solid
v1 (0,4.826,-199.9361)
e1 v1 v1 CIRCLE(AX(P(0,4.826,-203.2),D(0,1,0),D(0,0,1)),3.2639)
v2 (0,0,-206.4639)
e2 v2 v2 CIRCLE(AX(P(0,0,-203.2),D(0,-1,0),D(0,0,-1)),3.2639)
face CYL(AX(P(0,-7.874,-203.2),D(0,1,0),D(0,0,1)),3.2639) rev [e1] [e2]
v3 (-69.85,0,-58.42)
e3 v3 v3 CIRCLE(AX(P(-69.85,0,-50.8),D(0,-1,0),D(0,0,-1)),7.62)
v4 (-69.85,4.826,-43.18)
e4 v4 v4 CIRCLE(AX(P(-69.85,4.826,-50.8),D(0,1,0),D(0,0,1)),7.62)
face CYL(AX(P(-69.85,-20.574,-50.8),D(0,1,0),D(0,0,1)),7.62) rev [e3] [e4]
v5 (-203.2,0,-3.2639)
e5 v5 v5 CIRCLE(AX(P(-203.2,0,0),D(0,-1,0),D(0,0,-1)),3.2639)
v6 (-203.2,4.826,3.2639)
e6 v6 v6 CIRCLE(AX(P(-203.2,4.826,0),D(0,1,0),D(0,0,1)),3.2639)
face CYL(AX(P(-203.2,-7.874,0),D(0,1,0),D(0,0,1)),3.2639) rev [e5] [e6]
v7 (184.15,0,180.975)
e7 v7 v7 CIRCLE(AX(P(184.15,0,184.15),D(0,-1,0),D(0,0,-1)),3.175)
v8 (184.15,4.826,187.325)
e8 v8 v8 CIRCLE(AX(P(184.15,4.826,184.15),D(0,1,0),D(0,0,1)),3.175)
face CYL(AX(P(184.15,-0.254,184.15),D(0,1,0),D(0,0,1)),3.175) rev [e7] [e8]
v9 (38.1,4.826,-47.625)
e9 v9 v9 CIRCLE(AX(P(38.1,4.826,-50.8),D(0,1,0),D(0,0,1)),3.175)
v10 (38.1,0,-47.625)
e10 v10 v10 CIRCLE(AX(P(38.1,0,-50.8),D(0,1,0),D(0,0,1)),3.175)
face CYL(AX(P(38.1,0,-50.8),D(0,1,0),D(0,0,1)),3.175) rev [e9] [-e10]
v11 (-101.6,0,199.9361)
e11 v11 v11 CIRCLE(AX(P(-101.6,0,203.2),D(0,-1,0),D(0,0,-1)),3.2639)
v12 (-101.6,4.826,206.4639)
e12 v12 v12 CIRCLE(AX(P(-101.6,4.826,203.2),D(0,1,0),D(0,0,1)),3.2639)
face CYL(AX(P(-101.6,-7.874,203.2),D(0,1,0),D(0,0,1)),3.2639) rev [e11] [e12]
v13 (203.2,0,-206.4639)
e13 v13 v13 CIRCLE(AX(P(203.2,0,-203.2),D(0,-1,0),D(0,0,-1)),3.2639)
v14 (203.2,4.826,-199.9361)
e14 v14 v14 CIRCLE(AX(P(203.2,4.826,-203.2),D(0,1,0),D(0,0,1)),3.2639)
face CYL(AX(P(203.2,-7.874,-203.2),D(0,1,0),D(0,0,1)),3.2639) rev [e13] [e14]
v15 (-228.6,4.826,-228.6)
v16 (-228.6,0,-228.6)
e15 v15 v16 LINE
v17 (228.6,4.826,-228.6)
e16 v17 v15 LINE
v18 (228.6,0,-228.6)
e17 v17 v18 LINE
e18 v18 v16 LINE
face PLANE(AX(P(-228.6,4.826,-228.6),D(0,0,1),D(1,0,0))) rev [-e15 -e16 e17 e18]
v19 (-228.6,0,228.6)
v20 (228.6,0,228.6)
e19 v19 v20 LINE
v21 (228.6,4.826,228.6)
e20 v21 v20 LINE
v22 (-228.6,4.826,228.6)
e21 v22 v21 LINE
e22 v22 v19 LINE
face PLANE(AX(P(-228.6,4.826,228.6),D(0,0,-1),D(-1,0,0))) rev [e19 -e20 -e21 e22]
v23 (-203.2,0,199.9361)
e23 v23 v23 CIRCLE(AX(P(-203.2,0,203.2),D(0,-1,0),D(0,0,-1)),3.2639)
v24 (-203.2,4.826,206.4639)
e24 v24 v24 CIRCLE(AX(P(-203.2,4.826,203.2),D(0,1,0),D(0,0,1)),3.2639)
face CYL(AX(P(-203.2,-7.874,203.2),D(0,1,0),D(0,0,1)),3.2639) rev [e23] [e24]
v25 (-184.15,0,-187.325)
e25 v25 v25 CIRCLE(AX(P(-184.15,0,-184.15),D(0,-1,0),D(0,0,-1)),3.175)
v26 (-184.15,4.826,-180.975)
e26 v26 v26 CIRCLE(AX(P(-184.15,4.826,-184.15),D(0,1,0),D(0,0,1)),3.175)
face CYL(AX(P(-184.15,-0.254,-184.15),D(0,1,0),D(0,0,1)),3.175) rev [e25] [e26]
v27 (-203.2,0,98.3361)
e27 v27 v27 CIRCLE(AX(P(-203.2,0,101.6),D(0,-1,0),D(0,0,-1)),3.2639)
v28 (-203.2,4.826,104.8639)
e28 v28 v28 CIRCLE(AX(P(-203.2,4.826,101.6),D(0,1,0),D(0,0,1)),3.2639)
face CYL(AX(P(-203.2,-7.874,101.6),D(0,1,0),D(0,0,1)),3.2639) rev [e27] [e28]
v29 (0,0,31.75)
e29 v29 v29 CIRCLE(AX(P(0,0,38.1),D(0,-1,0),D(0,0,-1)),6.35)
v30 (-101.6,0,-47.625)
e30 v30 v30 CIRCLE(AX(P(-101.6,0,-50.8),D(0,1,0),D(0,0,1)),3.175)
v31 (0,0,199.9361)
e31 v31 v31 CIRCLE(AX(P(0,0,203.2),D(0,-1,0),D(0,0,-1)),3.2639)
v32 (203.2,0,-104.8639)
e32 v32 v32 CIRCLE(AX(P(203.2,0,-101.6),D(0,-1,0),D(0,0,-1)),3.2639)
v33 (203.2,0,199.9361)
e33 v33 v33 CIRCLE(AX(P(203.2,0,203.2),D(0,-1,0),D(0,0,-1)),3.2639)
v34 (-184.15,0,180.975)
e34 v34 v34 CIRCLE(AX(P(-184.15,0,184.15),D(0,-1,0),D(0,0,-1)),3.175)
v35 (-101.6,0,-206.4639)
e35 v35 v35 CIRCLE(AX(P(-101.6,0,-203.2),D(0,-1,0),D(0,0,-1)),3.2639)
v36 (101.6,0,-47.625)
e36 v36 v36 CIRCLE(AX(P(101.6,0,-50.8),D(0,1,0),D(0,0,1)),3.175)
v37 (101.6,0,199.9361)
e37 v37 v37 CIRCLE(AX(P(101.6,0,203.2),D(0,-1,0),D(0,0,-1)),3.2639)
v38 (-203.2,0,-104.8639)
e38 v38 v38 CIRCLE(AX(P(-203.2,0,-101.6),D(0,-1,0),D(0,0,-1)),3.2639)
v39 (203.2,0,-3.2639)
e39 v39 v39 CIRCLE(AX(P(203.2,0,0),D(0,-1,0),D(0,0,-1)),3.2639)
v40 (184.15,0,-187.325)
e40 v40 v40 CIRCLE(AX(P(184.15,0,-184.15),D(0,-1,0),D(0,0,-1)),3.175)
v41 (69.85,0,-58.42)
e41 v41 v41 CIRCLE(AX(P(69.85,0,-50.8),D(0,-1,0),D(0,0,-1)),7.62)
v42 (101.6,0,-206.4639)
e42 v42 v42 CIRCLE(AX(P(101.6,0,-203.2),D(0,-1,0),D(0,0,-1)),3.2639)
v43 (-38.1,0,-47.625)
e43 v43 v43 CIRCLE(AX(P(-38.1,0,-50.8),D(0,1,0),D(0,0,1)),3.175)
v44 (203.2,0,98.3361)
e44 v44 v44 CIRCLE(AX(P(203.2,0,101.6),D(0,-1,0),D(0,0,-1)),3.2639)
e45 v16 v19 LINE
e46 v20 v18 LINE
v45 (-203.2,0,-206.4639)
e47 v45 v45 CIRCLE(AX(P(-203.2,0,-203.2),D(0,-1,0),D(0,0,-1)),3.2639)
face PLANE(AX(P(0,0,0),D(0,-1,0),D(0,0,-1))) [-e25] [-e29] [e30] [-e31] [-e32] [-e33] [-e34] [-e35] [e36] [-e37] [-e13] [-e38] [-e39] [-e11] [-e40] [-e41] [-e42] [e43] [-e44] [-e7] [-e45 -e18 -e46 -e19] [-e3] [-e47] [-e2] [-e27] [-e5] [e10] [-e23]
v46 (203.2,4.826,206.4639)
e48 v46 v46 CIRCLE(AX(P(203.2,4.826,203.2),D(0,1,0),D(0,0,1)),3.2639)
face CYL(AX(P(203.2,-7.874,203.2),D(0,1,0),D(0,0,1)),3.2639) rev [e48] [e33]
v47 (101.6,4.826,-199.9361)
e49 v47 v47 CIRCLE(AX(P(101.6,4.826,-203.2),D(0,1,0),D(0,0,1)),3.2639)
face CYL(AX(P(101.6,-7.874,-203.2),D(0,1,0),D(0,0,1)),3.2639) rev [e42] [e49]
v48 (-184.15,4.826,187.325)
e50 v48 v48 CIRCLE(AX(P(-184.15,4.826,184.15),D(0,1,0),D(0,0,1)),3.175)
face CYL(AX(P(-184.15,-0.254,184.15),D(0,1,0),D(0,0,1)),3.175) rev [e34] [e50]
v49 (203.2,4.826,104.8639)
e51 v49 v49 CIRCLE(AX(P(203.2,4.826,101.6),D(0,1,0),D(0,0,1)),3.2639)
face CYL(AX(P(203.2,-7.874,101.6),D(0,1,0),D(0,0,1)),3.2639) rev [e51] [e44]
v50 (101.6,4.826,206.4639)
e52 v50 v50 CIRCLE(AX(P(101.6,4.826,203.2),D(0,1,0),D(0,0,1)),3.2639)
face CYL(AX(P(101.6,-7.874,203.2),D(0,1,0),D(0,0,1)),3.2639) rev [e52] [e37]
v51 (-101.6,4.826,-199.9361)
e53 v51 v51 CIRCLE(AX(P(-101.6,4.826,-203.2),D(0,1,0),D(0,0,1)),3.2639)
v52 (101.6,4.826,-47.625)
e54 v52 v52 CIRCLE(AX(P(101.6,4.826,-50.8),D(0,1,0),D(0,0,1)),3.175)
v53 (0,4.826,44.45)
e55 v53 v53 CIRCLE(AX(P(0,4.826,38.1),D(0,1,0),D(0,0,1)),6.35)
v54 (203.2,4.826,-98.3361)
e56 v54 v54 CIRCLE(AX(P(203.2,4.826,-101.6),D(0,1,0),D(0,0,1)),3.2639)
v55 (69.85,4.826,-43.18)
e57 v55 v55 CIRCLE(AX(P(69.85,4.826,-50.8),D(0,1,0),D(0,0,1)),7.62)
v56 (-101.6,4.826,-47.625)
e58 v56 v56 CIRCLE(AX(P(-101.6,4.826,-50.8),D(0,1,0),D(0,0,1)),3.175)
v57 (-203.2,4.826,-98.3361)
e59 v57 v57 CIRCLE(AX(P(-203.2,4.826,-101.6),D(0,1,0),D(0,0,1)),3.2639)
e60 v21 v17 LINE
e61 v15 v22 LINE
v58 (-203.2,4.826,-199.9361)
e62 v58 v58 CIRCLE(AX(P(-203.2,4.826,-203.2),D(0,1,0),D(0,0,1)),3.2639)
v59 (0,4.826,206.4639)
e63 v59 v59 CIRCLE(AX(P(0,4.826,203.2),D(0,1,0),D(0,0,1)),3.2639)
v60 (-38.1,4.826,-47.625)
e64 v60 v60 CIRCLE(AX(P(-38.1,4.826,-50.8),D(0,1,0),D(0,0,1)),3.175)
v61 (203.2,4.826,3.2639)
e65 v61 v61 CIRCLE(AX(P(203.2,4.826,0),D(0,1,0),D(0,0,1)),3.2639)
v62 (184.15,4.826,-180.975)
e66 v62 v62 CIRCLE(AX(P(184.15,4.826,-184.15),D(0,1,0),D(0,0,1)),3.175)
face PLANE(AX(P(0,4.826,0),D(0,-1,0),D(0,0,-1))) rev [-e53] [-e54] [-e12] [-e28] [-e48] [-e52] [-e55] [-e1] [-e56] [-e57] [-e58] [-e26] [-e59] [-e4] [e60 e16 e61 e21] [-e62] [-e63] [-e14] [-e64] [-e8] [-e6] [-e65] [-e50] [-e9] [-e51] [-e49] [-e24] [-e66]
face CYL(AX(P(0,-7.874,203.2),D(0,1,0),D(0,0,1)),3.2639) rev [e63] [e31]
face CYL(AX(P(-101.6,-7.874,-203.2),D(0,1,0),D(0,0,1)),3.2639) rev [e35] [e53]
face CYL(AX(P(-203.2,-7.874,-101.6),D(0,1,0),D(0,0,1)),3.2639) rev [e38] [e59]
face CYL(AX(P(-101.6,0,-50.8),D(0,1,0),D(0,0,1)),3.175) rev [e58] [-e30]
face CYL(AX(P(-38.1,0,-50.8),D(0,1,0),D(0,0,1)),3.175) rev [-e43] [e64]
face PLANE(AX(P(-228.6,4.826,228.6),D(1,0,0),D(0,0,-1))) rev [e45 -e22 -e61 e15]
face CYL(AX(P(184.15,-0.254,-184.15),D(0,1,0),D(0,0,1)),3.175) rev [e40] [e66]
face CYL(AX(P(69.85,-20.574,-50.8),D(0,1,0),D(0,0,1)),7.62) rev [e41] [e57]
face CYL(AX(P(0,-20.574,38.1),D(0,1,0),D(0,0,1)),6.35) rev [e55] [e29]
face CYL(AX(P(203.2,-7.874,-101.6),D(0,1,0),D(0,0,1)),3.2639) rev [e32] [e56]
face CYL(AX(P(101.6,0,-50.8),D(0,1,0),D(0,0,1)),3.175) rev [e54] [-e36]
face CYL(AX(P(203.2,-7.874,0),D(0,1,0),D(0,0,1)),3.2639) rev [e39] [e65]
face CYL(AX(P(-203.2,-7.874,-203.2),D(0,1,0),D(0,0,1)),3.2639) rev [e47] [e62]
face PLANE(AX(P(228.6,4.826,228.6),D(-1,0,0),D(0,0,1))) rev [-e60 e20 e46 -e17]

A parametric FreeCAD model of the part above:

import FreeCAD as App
import Part
import Sketcher
from FreeCAD import Vector
Q = App.Units.Quantity

doc = App.newDocument("Part")
body = doc.addObject("PartDesign::Body", "Body")

sketch1 = body.newObject("Sketcher::SketchObject", "Sketch")
sketch1.AttachmentSupport = (doc.getObject("XZ_Plane"), [""])
sketch1.MapMode = "FlatFace"
sketch1.addGeometry([
    Part.LineSegment(Vector(-228.6, -228.6, 0), Vector(-228.6, 228.6, 0)),
    Part.LineSegment(Vector(-228.6, 228.6, 0), Vector(228.6, 228.6, 0)),
    Part.LineSegment(Vector(228.6, 228.6, 0), Vector(228.6, -228.6, 0)),
    Part.LineSegment(Vector(228.6, -228.6, 0), Vector(-228.6, -228.6, 0)),
], False)
sketch1.addConstraint([
    Sketcher.Constraint("Coincident", 0, 2, 1, 1),
    Sketcher.Constraint("Coincident", 1, 2, 2, 1),
    Sketcher.Constraint("Coincident", 2, 2, 3, 1),
    Sketcher.Constraint("Coincident", 3, 2, 0, 1),
    Sketcher.Constraint("Vertical", 0),
    Sketcher.Constraint("Horizontal", 1),
    Sketcher.Constraint("Vertical", 2),
    Sketcher.Constraint("Horizontal", 3),
    Sketcher.Constraint("Symmetric", 0, 2, 2, 2, -1, 1),
    Sketcher.Constraint("Equal", 3, 0),
    Sketcher.Constraint("DistanceX", 1, 1, 1, 2, Q("18 in")),
])
pad1 = body.newObject("PartDesign::Pad", "Pad")
pad1.Profile = sketch1
pad1.Length = Q("0.19 in")
pad1.Reversed = True

sketch2 = body.newObject("Sketcher::SketchObject", "Sketch001")
sketch2.AttachmentSupport = (doc.getObject("XZ_Plane"), [""])
sketch2.MapMode = "FlatFace"
sketch2.AttachmentOffset = App.Placement(Vector(0, 0, -0.19 * 25.4), App.Rotation())
sketch2.addGeometry([
    Part.Circle(Vector(69.85, -50.8, 0), Vector(0, 0, 1), 7.62),
    Part.Circle(Vector(-69.85, -50.8, 0), Vector(0, 0, 1), 7.62),
    Part.Circle(Vector(0, 38.1, 0), Vector(0, 0, 1), 6.35),
], False)
sketch2.addConstraint([
    Sketcher.Constraint("Equal", 0, 1),
    Sketcher.Constraint("Symmetric", 0, 3, 1, 3, -2),
    Sketcher.Constraint("PointOnObject", 2, 3, -2),
    Sketcher.Constraint("Diameter", 0, Q("0.6 in")),
    Sketcher.Constraint("Diameter", 2, Q("0.5 in")),
    Sketcher.Constraint("DistanceY", 0, 3, -1, 1, Q("2 in")),
    Sketcher.Constraint("DistanceY", -1, 1, 2, 3, Q("1.5 in")),
    Sketcher.Constraint("DistanceX", 1, 3, 0, 3, Q("5.5 in")),
])
pocket1 = body.newObject("PartDesign::Pocket", "Pocket")
pocket1.Profile = sketch2
pocket1.Length = Q("1 in")
pocket1.Reversed = True

sketch3 = body.newObject("Sketcher::SketchObject", "Sketch002")
sketch3.AttachmentSupport = (doc.getObject("XZ_Plane"), [""])
sketch3.MapMode = "FlatFace"
sketch3.AttachmentOffset = App.Placement(Vector(0, 0, -0.19 * 25.4), App.Rotation())
sketch3.addGeometry([
    Part.Circle(Vector(-184.15, -184.15, 0), Vector(0, 0, 1), 3.175),
    Part.Circle(Vector(184.15, -184.15, 0), Vector(0, 0, 1), 3.175),
    Part.Circle(Vector(184.15, 184.15, 0), Vector(0, 0, 1), 3.175),
    Part.Circle(Vector(-184.15, 184.15, 0), Vector(0, 0, 1), 3.175),
], False)
sketch3.addConstraint([
    Sketcher.Constraint("Equal", 0, 1),
    Sketcher.Constraint("Equal", 1, 2),
    Sketcher.Constraint("Equal", 2, 3),
    Sketcher.Constraint("Symmetric", 0, 3, 2, 3, -1, 1),
    Sketcher.Constraint("Symmetric", 1, 3, 3, 3, -1, 1),
    Sketcher.Constraint("Symmetric", 0, 3, 1, 3, -2),
    Sketcher.Constraint("Diameter", 0, Q("0.25 in")),
    Sketcher.Constraint("DistanceX", 0, 3, 1, 3, Q("14.5 in")),
    Sketcher.Constraint("DistanceY", 1, 3, 2, 3, Q("14.5 in")),
])
pocket2 = body.newObject("PartDesign::Pocket", "Pocket001")
pocket2.Profile = sketch3
pocket2.Length = Q("0.2 in")
pocket2.Reversed = True

sketch4 = body.newObject("Sketcher::SketchObject", "Sketch003")
sketch4.AttachmentSupport = (doc.getObject("XZ_Plane"), [""])
sketch4.MapMode = "FlatFace"
sketch4.AttachmentOffset = App.Placement(Vector(0, 0, -0.19 * 25.4), App.Rotation())
sketch4.addGeometry([
    Part.Circle(Vector(203.2, 203.2, 0), Vector(0, 0, 1), 3.2639),
    Part.Circle(Vector(-203.2, -203.2, 0), Vector(0, 0, 1), 3.2639),
    Part.Circle(Vector(203.2, 101.6, 0), Vector(0, 0, 1), 3.2639),
    Part.Circle(Vector(203.2, 0, 0), Vector(0, 0, 1), 3.2639),
    Part.Circle(Vector(203.2, -101.6, 0), Vector(0, 0, 1), 3.2639),
    Part.Circle(Vector(203.2, -203.2, 0), Vector(0, 0, 1), 3.2639),
    Part.Circle(Vector(101.6, 203.2, 0), Vector(0, 0, 1), 3.2639),
    Part.Circle(Vector(0, 203.2, 0), Vector(0, 0, 1), 3.2639),
    Part.Circle(Vector(-101.6, 203.2, 0), Vector(0, 0, 1), 3.2639),
    Part.Circle(Vector(-203.2, 203.2, 0), Vector(0, 0, 1), 3.2639),
    Part.Circle(Vector(304.8, 203.2, 0), Vector(0, 0, 1), 3.2639),
    Part.Circle(Vector(-101.6, -203.2, 0), Vector(0, 0, 1), 3.2639),
    Part.Circle(Vector(406.4, 203.2, 0), Vector(0, 0, 1), 3.2639),
    Part.Circle(Vector(0, -203.2, 0), Vector(0, 0, 1), 3.2639),
    Part.Circle(Vector(508, 203.2, 0), Vector(0, 0, 1), 3.2639),
    Part.Circle(Vector(101.6, -203.2, 0), Vector(0, 0, 1), 3.2639),
    Part.Circle(Vector(203.2, 304.8, 0), Vector(0, 0, 1), 3.2639),
    Part.Circle(Vector(-203.2, -101.6, 0), Vector(0, 0, 1), 3.2639),
    Part.Circle(Vector(203.2, 406.4, 0), Vector(0, 0, 1), 3.2639),
    Part.Circle(Vector(-203.2, 0, 0), Vector(0, 0, 1), 3.2639),
    Part.Circle(Vector(203.2, 508, 0), Vector(0, 0, 1), 3.2639),
    Part.Circle(Vector(-203.2, 101.6, 0), Vector(0, 0, 1), 3.2639),
], False)
sketch4.addConstraint([
    Sketcher.Constraint("Equal", 0, 1),
    Sketcher.Constraint("Equal", 1, 2),
    Sketcher.Constraint("Equal", 2, 3),
    Sketcher.Constraint("Equal", 3, 4),
    Sketcher.Constraint("Equal", 4, 5),
    Sketcher.Constraint("Equal", 5, 6),
    Sketcher.Constraint("Equal", 6, 7),
    Sketcher.Constraint("Equal", 7, 8),
    Sketcher.Constraint("Equal", 8, 9),
    Sketcher.Constraint("Equal", 9, 10),
    Sketcher.Constraint("Equal", 10, 11),
    Sketcher.Constraint("Equal", 11, 12),
    Sketcher.Constraint("Equal", 12, 13),
    Sketcher.Constraint("Equal", 13, 14),
    Sketcher.Constraint("Equal", 14, 15),
    Sketcher.Constraint("Equal", 15, 16),
    Sketcher.Constraint("Equal", 16, 17),
    Sketcher.Constraint("Equal", 17, 18),
    Sketcher.Constraint("Equal", 18, 19),
    Sketcher.Constraint("Equal", 19, 20),
    Sketcher.Constraint("Equal", 20, 21),
    Sketcher.Constraint("Symmetric", 0, 3, 1, 3, -1, 1),
    Sketcher.Constraint("Symmetric", 5, 3, 9, 3, -1, 1),
    Sketcher.Constraint("Symmetric", 6, 3, 11, 3, -1, 1),
    Sketcher.Constraint("Symmetric", 7, 3, 13, 3, -1, 1),
    Sketcher.Constraint("Symmetric", 8, 3, 15, 3, -1, 1),
    Sketcher.Constraint("Symmetric", 2, 3, 17, 3, -1, 1),
    Sketcher.Constraint("Symmetric", 3, 3, 19, 3, -1, 1),
    Sketcher.Constraint("Symmetric", 4, 3, 21, 3, -1, 1),
    Sketcher.Constraint("Symmetric", 1, 3, 5, 3, -2),
    Sketcher.Constraint("Symmetric", 6, 3, 8, 3, -2),
    Sketcher.Constraint("Symmetric", 4, 3, 17, 3, -2),
    Sketcher.Constraint("PointOnObject", 3, 3, -1),
    Sketcher.Constraint("PointOnObject", 7, 3, -2),
    Sketcher.Constraint("Horizontal", 0, 3, 6, 3),
    Sketcher.Constraint("Horizontal", 6, 3, 7, 3),
    Sketcher.Constraint("Horizontal", 9, 3, 10, 3),
    Sketcher.Constraint("Horizontal", 10, 3, 12, 3),
    Sketcher.Constraint("Horizontal", 12, 3, 14, 3),
    Sketcher.Constraint("Vertical", 0, 3, 2, 3),
    Sketcher.Constraint("Vertical", 2, 3, 3, 3),
    Sketcher.Constraint("Vertical", 5, 3, 16, 3),
    Sketcher.Constraint("Vertical", 16, 3, 18, 3),
    Sketcher.Constraint("Vertical", 18, 3, 20, 3),
    Sketcher.Constraint("Diameter", 0, Q("0.257 in")),
    Sketcher.Constraint("DistanceX", -1, 1, 0, 3, Q("8 in")),
    Sketcher.Constraint("DistanceY", -1, 1, 0, 3, Q("8 in")),
    Sketcher.Constraint("DistanceY", -1, 1, 2, 3, Q("4 in")),
    Sketcher.Constraint("DistanceX", -1, 1, 6, 3, Q("4 in")),
    Sketcher.Constraint("DistanceX", -1, 1, 10, 3, Q("12 in")),
    Sketcher.Constraint("DistanceX", -1, 1, 12, 3, Q("16 in")),
    Sketcher.Constraint("DistanceX", -1, 1, 14, 3, Q("20 in")),
    Sketcher.Constraint("DistanceY", -1, 1, 16, 3, Q("12 in")),
    Sketcher.Constraint("DistanceY", -1, 1, 18, 3, Q("16 in")),
    Sketcher.Constraint("DistanceY", -1, 1, 20, 3, Q("20 in")),
])
pocket3 = body.newObject("PartDesign::Pocket", "Pocket002")
pocket3.Profile = sketch4
pocket3.Length = Q("0.5 in")
pocket3.Reversed = True

sketch5 = body.newObject("Sketcher::SketchObject", "Sketch004")
sketch5.AttachmentSupport = (doc.getObject("XZ_Plane"), [""])
sketch5.MapMode = "FlatFace"
sketch5.AttachmentOffset = App.Placement(Vector(0, 0, -0.19 * 25.4), App.Rotation())
sketch5.addGeometry([
    Part.Circle(Vector(-101.6, -50.8, 0), Vector(0, 0, 1), 3.175),
    Part.Circle(Vector(-38.1, -50.8, 0), Vector(0, 0, 1), 3.175),
    Part.Circle(Vector(38.1, -50.8, 0), Vector(0, 0, 1), 3.175),
    Part.Circle(Vector(101.6, -50.8, 0), Vector(0, 0, 1), 3.175),
], False)
sketch5.addConstraint([
    Sketcher.Constraint("Equal", 0, 1),
    Sketcher.Constraint("Equal", 1, 2),
    Sketcher.Constraint("Equal", 2, 3),
    Sketcher.Constraint("Symmetric", 1, 3, 2, 3, -2),
    Sketcher.Constraint("Symmetric", 0, 3, 3, 3, -2),
    Sketcher.Constraint("Horizontal", 0, 3, 1, 3),
    Sketcher.Constraint("Diameter", 0, Q("0.25 in")),
    Sketcher.Constraint("DistanceX", 0, 3, -1, 1, Q("4 in")),
    Sketcher.Constraint("DistanceY", 0, 3, -1, 1, Q("2 in")),
    Sketcher.Constraint("DistanceX", 1, 3, 2, 3, Q("3 in")),
])
pocket4 = body.newObject("PartDesign::Pocket", "Pocket003")
pocket4.Profile = sketch5
pocket4.Type = "ThroughAll"
pocket4.Reversed = True

doc.recompute()
